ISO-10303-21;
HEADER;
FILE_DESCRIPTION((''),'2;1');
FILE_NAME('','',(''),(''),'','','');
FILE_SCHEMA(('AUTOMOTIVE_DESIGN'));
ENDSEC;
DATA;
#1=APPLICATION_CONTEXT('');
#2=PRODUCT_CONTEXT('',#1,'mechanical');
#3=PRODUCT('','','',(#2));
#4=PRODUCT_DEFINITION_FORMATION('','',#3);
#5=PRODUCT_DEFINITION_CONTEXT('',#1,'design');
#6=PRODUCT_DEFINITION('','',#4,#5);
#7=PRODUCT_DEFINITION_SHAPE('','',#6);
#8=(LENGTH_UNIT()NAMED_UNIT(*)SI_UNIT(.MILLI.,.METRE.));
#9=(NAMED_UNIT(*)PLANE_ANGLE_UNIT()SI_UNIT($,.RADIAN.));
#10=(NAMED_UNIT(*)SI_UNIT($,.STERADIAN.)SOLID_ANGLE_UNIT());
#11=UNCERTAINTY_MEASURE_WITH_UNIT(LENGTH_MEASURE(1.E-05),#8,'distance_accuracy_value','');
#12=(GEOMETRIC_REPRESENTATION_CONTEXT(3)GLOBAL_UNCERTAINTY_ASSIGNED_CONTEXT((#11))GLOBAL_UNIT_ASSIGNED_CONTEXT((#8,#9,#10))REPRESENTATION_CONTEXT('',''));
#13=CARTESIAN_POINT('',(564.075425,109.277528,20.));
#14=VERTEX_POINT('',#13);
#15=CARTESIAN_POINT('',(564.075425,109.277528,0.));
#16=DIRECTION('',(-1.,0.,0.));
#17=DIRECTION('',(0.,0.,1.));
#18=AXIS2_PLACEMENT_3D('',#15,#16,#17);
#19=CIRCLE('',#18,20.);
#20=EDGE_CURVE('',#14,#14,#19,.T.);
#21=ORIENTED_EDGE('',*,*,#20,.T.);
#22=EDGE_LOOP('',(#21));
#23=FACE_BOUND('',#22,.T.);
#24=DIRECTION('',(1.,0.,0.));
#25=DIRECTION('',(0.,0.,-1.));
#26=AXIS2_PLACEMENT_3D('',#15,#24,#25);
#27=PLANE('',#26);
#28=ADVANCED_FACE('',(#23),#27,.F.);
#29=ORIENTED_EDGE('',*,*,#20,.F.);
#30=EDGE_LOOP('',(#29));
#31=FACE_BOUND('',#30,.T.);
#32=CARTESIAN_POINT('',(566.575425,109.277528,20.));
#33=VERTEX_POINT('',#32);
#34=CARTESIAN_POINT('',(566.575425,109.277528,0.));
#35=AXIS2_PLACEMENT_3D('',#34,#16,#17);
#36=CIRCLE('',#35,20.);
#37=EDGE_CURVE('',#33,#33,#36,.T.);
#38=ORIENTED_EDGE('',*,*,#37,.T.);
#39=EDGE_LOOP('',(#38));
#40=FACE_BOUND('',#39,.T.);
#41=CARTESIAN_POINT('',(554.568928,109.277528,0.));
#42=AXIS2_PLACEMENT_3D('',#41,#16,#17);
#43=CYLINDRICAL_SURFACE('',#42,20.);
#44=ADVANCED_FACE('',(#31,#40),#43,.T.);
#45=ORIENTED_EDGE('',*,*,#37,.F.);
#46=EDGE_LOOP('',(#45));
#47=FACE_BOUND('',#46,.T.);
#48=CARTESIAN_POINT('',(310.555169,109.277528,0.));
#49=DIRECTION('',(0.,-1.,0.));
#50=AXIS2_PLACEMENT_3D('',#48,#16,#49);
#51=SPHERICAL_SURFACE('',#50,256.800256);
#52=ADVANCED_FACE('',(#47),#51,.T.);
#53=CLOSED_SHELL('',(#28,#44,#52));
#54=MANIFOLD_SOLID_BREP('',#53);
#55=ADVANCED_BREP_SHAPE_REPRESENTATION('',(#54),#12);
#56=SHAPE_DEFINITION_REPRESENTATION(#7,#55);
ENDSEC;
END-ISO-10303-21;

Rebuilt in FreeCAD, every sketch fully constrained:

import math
import FreeCAD as App
import Part
import Sketcher
from FreeCAD import Vector
Q = App.Units.Quantity

doc = App.newDocument("Part")
params = doc.addObject("Spreadsheet::Sheet", "Params")
for row, (alias, value) in enumerate([
    ("sketch1_height", "20 mm"),
    ("sketch1_width", "2.5 mm"),
    ("revolution_angle", "360 deg"),
], start=1):
    params.set(f"A{row}", alias)
    params.set(f"B{row}", "=" + value)
    params.setAlias(f"B{row}", alias)

body = doc.addObject("PartDesign::Body", "Body")

sketch1 = doc.addObject("Sketcher::SketchObject", "Sketch")
body.addObject(sketch1)
sketch1.AttachmentSupport = (doc.XY_Plane, [""])
sketch1.MapMode = "FlatFace"
sketch1.addGeometry(Part.LineSegment(Vector(564.075425, 129.277528, 0), Vector(564.075425, 109.277528, 0)), False)
sketch1.addGeometry(Part.LineSegment(Vector(564.075425, 109.277528, 0), Vector(567.355425, 109.277528, 0)), False)
sketch1.addGeometry(Part.ArcOfCircle(Part.Circle(Vector(310.555168, 109.277528, 0), Vector(0, 0, 1), 256.800257), math.radians(0), math.radians(4.466807)), False)
sketch1.addGeometry(Part.LineSegment(Vector(566.575425, 129.277528, 0), Vector(564.075425, 129.277528, 0)), False)
sketch1.addGeometry(Part.LineSegment(Vector(310.555168, 109.277528, 0), Vector(567.355425, 109.277528, 0)), True)
sketch1.addConstraint(Sketcher.Constraint("Coincident", 0, 2, 1, 1))
sketch1.addConstraint(Sketcher.Constraint("Coincident", 1, 2, 2, 1))
sketch1.addConstraint(Sketcher.Constraint("Coincident", 2, 2, 3, 1))
sketch1.addConstraint(Sketcher.Constraint("Coincident", 3, 2, 0, 1))
sketch1.addConstraint(Sketcher.Constraint("Vertical", 0))
sketch1.addConstraint(Sketcher.Constraint("Horizontal", 1))
sketch1.addConstraint(Sketcher.Constraint("Horizontal", 3))
sketch1.addConstraint(Sketcher.Constraint("Horizontal", 4))
sketch1.addConstraint(Sketcher.Constraint("Coincident", 4, 1, 2, 3))
sketch1.addConstraint(Sketcher.Constraint("Coincident", 4, 2, 1, 2))
sketch1.addConstraint(Sketcher.Constraint("DistanceY", 0, 2, 0, 1, Q("20 mm")))
sketch1.addConstraint(Sketcher.Constraint("DistanceX", 3, 2, 3, 1, Q("2.5 mm")))
sketch1.addConstraint(Sketcher.Constraint("Radius", 2, Q("256.800257 mm")))
sketch1.addConstraint(Sketcher.Constraint("DistanceX", -1, 1, 2, 3, Q("310.555168 mm")))
sketch1.addConstraint(Sketcher.Constraint("DistanceY", -1, 1, 2, 3, Q("109.277528 mm")))
sketch1.setExpression("Constraints[10]", "Params.sketch1_height")
sketch1.setExpression("Constraints[11]", "Params.sketch1_width")
revolution = doc.addObject("PartDesign::Revolution", "Revolution")
body.addObject(revolution)
revolution.Profile = sketch1
revolution.ReferenceAxis = (sketch1, ["Axis0"])
revolution.setExpression("Angle", "Params.revolution_angle")

doc.recompute()
